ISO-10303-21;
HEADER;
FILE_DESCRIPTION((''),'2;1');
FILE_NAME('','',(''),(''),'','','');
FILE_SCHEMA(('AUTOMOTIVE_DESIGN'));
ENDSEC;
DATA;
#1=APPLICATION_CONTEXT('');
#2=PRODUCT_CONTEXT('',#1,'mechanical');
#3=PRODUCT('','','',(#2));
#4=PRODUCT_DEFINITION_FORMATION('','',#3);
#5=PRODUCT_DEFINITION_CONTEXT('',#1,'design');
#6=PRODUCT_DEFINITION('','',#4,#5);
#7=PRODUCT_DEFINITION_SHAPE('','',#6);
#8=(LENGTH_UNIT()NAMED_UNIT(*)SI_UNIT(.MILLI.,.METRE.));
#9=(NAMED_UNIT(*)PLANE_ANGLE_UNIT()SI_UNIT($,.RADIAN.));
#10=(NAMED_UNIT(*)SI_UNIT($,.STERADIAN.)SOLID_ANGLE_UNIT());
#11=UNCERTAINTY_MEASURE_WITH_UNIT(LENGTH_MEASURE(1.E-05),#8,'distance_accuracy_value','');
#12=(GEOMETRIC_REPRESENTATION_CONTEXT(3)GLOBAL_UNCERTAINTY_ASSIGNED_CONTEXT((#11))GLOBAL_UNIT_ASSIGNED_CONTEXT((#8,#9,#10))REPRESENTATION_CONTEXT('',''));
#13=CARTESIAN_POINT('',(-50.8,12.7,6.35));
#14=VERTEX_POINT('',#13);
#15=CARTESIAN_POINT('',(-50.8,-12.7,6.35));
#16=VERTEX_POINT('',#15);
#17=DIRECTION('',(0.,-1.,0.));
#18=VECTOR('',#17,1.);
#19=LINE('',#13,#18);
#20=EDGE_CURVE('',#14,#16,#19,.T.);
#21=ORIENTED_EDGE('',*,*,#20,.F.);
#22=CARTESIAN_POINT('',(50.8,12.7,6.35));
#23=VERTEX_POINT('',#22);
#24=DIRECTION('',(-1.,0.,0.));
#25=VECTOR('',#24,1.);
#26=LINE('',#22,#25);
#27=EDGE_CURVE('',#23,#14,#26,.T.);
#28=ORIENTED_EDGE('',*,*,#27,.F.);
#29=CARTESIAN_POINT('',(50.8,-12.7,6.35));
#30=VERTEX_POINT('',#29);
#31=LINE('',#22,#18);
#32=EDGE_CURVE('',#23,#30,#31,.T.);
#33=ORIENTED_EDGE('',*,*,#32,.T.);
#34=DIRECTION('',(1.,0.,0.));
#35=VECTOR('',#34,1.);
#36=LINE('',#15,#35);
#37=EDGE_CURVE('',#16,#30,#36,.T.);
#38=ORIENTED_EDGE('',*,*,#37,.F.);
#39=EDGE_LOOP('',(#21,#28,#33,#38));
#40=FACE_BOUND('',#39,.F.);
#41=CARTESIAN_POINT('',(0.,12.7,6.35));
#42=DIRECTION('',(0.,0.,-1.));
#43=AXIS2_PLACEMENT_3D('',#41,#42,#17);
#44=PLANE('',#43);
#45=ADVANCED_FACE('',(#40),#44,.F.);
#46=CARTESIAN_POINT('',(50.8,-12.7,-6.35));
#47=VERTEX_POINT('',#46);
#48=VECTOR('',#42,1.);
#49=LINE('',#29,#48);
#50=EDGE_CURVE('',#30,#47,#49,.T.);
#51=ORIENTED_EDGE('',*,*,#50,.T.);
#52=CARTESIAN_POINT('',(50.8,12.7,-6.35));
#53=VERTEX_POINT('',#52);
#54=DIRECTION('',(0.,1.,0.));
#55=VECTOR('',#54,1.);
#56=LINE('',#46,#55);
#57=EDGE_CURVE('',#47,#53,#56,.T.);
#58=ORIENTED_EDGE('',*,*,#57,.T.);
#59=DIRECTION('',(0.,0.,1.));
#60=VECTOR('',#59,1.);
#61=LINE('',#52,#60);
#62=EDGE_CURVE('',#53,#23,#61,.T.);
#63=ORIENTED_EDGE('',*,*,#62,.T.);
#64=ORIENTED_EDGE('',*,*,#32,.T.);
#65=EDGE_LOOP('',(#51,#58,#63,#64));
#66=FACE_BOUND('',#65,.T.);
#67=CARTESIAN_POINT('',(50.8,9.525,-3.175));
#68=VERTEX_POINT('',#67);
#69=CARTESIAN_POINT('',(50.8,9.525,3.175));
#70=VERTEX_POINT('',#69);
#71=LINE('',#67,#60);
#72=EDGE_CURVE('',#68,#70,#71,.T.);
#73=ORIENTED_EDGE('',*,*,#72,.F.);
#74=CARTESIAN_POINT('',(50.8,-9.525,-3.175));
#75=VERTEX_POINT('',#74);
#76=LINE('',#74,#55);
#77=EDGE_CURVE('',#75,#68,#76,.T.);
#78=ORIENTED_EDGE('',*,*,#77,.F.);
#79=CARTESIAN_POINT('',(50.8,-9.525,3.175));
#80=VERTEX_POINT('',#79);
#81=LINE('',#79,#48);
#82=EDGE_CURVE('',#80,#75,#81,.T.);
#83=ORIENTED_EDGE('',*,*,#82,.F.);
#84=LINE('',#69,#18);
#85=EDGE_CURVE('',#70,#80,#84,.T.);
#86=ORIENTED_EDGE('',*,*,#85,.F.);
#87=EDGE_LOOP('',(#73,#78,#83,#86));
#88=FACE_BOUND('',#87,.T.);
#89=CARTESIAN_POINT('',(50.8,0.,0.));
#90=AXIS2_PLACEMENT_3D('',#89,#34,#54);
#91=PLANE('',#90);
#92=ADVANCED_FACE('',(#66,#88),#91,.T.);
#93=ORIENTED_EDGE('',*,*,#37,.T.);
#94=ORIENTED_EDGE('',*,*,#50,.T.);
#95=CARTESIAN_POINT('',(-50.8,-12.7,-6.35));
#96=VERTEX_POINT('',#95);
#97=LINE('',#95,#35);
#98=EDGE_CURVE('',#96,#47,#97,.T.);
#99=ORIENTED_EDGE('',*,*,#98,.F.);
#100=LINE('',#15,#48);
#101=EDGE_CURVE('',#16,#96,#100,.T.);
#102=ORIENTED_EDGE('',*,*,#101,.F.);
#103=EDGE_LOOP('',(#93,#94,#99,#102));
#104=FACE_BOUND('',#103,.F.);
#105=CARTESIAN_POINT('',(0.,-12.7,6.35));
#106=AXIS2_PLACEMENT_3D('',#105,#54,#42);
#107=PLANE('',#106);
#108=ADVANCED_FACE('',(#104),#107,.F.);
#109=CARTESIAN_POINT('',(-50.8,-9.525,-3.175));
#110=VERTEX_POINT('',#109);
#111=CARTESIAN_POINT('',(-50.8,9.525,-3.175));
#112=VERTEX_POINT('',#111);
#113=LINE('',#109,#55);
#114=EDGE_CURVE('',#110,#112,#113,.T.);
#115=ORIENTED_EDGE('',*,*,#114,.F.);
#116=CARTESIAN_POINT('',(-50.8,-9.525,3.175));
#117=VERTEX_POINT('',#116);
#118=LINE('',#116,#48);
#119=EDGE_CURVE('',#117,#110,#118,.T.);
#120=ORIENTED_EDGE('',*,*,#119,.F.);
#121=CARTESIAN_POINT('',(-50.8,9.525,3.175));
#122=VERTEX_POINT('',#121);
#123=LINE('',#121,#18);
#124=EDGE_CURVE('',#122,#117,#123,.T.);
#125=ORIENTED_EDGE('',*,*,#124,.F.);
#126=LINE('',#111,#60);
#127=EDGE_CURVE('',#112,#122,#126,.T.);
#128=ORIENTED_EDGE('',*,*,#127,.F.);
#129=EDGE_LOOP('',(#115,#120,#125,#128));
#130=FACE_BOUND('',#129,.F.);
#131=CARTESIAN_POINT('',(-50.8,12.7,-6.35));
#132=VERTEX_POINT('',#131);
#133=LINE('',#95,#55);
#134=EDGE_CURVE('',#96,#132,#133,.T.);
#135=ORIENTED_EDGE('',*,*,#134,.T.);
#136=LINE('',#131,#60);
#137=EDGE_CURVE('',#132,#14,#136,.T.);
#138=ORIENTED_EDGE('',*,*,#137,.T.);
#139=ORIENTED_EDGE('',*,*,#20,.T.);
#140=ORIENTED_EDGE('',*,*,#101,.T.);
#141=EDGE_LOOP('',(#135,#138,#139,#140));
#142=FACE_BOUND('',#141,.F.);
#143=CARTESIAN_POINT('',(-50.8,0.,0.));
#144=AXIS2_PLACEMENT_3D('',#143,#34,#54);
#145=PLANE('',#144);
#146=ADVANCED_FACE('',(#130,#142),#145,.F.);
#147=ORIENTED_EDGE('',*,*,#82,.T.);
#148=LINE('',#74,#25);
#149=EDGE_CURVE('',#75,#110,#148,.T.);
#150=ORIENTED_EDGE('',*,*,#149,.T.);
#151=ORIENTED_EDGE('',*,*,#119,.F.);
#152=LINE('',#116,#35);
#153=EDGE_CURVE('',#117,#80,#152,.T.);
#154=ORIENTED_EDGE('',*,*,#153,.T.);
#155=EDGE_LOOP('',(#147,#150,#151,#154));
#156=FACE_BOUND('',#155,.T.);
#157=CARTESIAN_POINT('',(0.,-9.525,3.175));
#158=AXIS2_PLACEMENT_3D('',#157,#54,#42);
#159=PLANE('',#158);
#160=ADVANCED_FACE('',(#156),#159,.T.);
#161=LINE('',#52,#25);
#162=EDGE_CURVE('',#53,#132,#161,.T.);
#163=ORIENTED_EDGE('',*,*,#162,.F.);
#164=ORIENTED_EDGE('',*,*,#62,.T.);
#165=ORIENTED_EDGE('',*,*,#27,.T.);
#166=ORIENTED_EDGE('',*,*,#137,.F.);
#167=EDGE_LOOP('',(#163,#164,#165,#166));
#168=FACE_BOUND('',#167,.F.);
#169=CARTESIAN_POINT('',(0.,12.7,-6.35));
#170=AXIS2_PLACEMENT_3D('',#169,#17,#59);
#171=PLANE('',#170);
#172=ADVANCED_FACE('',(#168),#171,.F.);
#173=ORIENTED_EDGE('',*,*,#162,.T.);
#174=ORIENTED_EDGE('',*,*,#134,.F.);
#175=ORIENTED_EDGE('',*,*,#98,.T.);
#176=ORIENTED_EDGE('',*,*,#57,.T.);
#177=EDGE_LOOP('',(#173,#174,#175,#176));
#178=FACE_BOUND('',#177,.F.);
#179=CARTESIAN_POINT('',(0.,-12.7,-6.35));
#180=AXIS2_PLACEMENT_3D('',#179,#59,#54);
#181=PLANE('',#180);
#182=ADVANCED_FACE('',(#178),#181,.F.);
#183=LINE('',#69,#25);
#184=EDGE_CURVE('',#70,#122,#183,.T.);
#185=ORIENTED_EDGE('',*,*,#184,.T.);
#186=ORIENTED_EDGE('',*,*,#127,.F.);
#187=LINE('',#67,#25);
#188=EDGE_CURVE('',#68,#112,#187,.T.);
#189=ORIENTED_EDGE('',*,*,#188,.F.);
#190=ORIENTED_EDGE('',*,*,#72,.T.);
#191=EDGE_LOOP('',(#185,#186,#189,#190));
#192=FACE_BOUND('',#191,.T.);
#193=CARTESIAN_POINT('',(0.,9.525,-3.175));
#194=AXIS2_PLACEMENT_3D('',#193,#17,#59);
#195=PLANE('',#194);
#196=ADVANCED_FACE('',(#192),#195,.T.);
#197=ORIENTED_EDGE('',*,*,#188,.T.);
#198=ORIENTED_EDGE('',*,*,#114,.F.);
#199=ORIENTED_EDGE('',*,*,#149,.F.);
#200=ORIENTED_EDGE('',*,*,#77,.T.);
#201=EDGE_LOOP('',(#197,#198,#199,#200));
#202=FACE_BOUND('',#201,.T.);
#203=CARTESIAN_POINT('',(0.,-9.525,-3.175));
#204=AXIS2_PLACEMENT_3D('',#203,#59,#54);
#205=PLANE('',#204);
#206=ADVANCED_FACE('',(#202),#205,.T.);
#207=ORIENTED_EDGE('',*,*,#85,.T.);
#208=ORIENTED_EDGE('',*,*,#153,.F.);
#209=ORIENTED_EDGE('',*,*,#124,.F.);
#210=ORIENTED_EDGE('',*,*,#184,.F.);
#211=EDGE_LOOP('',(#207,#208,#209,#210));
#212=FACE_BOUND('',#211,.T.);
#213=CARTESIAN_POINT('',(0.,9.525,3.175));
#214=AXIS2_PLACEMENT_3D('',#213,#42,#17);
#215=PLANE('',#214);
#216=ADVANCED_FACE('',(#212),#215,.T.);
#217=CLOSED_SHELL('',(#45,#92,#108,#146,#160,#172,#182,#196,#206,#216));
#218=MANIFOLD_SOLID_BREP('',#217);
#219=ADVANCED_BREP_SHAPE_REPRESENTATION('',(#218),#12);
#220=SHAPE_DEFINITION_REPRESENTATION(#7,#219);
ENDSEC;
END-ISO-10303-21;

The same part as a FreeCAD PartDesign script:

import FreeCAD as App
import Part
import Sketcher

V = App.Vector
Q = App.Units.Quantity


def add_polygon(sketch, points):
    """Adds a closed chain of lines whose ends are joined by coincident constraints."""
    first, n = sketch.GeometryCount, len(points)
    for a, b in zip(points, points[1:] + points[:1]):
        sketch.addGeometry(Part.LineSegment(App.Vector(*a, 0), App.Vector(*b, 0)), False)
    for i in range(n):
        sketch.addConstraint(Sketcher.Constraint("Coincident", first + i, 2, first + (i + 1) % n, 1))

doc = App.newDocument("Part")
body = doc.addObject("PartDesign::Body", "Body")

sketch1 = body.newObject("Sketcher::SketchObject", "Sketch")
sketch1.AttachmentSupport = (doc.getObject("YZ_Plane"), [""])
sketch1.MapMode = "FlatFace"
add_polygon(sketch1, [(12.7, 6.35), (-12.7, 6.35), (-12.7, -6.35), (12.7, -6.35)])
add_polygon(sketch1, [(-9.525, -3.175), (-9.525, 3.175), (9.525, 3.175), (9.525, -3.175)])
sketch1.addConstraint(Sketcher.Constraint("Horizontal", 0))
sketch1.addConstraint(Sketcher.Constraint("Vertical", 1))
sketch1.addConstraint(Sketcher.Constraint("Horizontal", 2))
sketch1.addConstraint(Sketcher.Constraint("Vertical", 3))
sketch1.addConstraint(Sketcher.Constraint("Vertical", 4))
sketch1.addConstraint(Sketcher.Constraint("Horizontal", 5))
sketch1.addConstraint(Sketcher.Constraint("Vertical", 6))
sketch1.addConstraint(Sketcher.Constraint("Horizontal", 7))
sketch1.addConstraint(Sketcher.Constraint("Symmetric", 0, 2, 2, 2, -1, 1))
sketch1.addConstraint(Sketcher.Constraint("Symmetric", 4, 2, 6, 2, -1, 1))
sketch1.addConstraint(Sketcher.Constraint("DistanceX", 0, 2, 0, 1, Q("1 in")))
sketch1.addConstraint(Sketcher.Constraint("DistanceY", 1, 2, 1, 1, Q("0.5 in")))
sketch1.addConstraint(Sketcher.Constraint("DistanceY", -1, 1, 4, 2, Q("0.125 in")))
sketch1.addConstraint(Sketcher.Constraint("DistanceX", 0, 2, 4, 2, Q("0.125 in")))
pad1 = body.newObject("PartDesign::Pad", "Pad")
pad1.Profile = sketch1
pad1.Length = Q("4 in")
pad1.Midplane = True

doc.recompute()
